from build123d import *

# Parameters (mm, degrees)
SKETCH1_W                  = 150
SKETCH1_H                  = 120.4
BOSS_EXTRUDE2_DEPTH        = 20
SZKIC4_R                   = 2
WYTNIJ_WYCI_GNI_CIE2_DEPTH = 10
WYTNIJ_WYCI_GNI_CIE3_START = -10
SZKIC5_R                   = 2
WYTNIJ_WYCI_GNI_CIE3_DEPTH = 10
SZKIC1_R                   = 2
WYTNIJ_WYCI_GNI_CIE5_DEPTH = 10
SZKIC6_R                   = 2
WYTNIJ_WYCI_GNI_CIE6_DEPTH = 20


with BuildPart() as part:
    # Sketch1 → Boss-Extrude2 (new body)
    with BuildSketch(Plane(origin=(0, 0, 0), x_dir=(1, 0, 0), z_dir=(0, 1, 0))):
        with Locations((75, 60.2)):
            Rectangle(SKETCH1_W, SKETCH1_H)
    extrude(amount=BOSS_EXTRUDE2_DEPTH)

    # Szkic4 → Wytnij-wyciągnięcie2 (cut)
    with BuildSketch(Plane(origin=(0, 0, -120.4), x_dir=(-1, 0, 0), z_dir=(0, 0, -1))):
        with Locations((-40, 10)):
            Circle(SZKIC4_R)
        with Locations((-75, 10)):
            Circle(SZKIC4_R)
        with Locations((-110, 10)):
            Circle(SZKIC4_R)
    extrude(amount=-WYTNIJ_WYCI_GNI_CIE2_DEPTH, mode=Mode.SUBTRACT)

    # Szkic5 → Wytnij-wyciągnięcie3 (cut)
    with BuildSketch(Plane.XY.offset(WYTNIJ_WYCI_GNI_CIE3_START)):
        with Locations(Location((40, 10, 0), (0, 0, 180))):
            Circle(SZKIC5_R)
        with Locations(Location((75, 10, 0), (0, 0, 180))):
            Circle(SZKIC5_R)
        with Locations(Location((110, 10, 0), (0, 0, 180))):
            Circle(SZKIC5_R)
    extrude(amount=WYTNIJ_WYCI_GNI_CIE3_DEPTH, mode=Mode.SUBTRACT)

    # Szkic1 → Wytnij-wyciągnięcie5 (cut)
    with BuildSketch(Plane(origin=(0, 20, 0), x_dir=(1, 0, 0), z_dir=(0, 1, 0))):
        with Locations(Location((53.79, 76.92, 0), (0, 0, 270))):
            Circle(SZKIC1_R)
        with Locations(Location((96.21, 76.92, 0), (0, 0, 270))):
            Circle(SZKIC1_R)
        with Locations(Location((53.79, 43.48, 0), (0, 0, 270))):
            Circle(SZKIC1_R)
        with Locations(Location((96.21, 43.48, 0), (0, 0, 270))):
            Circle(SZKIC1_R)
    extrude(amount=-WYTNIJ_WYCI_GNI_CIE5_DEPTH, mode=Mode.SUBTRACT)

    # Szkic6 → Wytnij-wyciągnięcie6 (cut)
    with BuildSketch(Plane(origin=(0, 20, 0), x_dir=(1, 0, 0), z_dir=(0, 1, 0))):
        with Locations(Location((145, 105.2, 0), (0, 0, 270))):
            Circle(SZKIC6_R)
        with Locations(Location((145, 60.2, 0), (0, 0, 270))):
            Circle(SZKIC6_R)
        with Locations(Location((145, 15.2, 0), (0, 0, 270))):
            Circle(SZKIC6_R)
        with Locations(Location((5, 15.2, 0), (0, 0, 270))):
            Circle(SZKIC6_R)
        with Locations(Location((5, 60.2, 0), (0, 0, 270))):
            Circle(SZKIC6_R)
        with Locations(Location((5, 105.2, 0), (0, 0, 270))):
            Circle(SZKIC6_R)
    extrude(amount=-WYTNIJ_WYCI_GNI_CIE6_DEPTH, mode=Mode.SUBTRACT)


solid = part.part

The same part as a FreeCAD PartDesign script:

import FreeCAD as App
import Part
import Sketcher


def add_polygon(sketch, points):
    """Adds a closed chain of lines whose ends are joined by coincident constraints."""
    first, n = sketch.GeometryCount, len(points)
    for a, b in zip(points, points[1:] + points[:1]):
        sketch.addGeometry(Part.LineSegment(App.Vector(*a, 0), App.Vector(*b, 0)), False)
    for i in range(n):
        sketch.addConstraint(Sketcher.Constraint("Coincident", first + i, 2, first + (i + 1) % n, 1))

doc = App.newDocument("Part")
params = doc.addObject("Spreadsheet::Sheet", "Params")
for row, (alias, value) in enumerate([
    ("sketch1_width", "150 mm"),
    ("sketch1_height", "120.4 mm"),
    ("pad1_length", "20 mm"),
    ("sketch2_diameter", "4 mm"),
    ("pocket1_length", "10 mm"),
    ("sketch3_diameter", "4 mm"),
    ("pocket2_length", "10 mm"),
    ("sketch4_diameter", "4 mm"),
    ("pocket3_length", "10 mm"),
    ("sketch5_diameter", "4 mm"),
    ("pocket4_length", "20 mm"),
], start=1):
    params.set(f"A{row}", alias)
    params.set(f"B{row}", "=" + value)
    params.setAlias(f"B{row}", alias)

body = doc.addObject("PartDesign::Body", "Body")

# Sketch on XZ plane
sketch1 = body.newObject("Sketcher::SketchObject", "Sketch")
sketch1.AttachmentSupport = (doc.getObject("XZ_Plane"), [""])
sketch1.MapMode = "FlatFace"
add_polygon(sketch1, [(0, -120), (0, 0), (150, 0), (150, -120)])  # lines 0-3
sketch1.addConstraint([
    Sketcher.Constraint("Vertical", 0),
    Sketcher.Constraint("Horizontal", 1),
    Sketcher.Constraint("Vertical", 2),
    Sketcher.Constraint("Horizontal", 3),
    Sketcher.Constraint("Coincident", 0, 2, -1, 1),
    Sketcher.Constraint("DistanceX", 1, 1, 1, 2, 150.0),
    Sketcher.Constraint("DistanceY", 0, 1, 0, 2, 120.4),
])
sketch1.setExpression("Constraints[9]", "Params.sketch1_width")
sketch1.setExpression("Constraints[10]", "Params.sketch1_height")
pad1 = body.newObject("PartDesign::Pad", "Pad")
pad1.Profile = sketch1
pad1.setExpression("Length", "Params.pad1_length")
pad1.Reversed = True

# Sketch on XY plane
sketch2 = body.newObject("Sketcher::SketchObject", "Sketch001")
sketch2.AttachmentSupport = (doc.getObject("XY_Plane"), [""])
sketch2.MapMode = "FlatFace"
sketch2.AttachmentOffset = App.Placement(App.Vector(0, 0, -120.4), App.Rotation())
sketch2.addGeometry([
    Part.Circle(App.Vector(40, 10, 0), App.Vector(0, 0, 1), 2),
    Part.Circle(App.Vector(75, 10, 0), App.Vector(0, 0, 1), 2),
    Part.Circle(App.Vector(110, 10, 0), App.Vector(0, 0, 1), 2),
], False)
sketch2.addConstraint([
    Sketcher.Constraint("Equal", 0, 1),
    Sketcher.Constraint("Equal", 1, 2),
    Sketcher.Constraint("Horizontal", 0, 3, 1, 3),
    Sketcher.Constraint("Horizontal", 1, 3, 2, 3),
    Sketcher.Constraint("Diameter", 0, 4.0),
    Sketcher.Constraint("DistanceX", -1, 1, 0, 3, 40.0),
    Sketcher.Constraint("DistanceY", -1, 1, 0, 3, 10.0),
    Sketcher.Constraint("DistanceX", -1, 1, 1, 3, 75.0),
    Sketcher.Constraint("DistanceX", -1, 1, 2, 3, 110.0),
])
sketch2.setExpression("Constraints[4]", "Params.sketch2_diameter")
pocket1 = body.newObject("PartDesign::Pocket", "Pocket")
pocket1.Profile = sketch2
pocket1.setExpression("Length", "Params.pocket1_length")
pocket1.Reversed = True

# Sketch on XY plane
sketch3 = body.newObject("Sketcher::SketchObject", "Sketch002")
sketch3.AttachmentSupport = (doc.getObject("XY_Plane"), [""])
sketch3.MapMode = "FlatFace"
sketch3.AttachmentOffset = App.Placement(App.Vector(0, 0, -10), App.Rotation())
sketch3.addGeometry([
    Part.Circle(App.Vector(40, 10, 0), App.Vector(0, 0, 1), 2),
    Part.Circle(App.Vector(75, 10, 0), App.Vector(0, 0, 1), 2),
    Part.Circle(App.Vector(110, 10, 0), App.Vector(0, 0, 1), 2),
], False)
sketch3.addConstraint([
    Sketcher.Constraint("Equal", 0, 1),
    Sketcher.Constraint("Equal", 1, 2),
    Sketcher.Constraint("Horizontal", 0, 3, 1, 3),
    Sketcher.Constraint("Horizontal", 1, 3, 2, 3),
    Sketcher.Constraint("Diameter", 0, 4.0),
    Sketcher.Constraint("DistanceX", -1, 1, 0, 3, 40.0),
    Sketcher.Constraint("DistanceY", -1, 1, 0, 3, 10.0),
    Sketcher.Constraint("DistanceX", -1, 1, 1, 3, 75.0),
    Sketcher.Constraint("DistanceX", -1, 1, 2, 3, 110.0),
])
sketch3.setExpression("Constraints[4]", "Params.sketch3_diameter")
pocket2 = body.newObject("PartDesign::Pocket", "Pocket001")
pocket2.Profile = sketch3
pocket2.setExpression("Length", "Params.pocket2_length")
pocket2.Reversed = True

# Sketch on XZ plane
sketch4 = body.newObject("Sketcher::SketchObject", "Sketch003")
sketch4.AttachmentSupport = (doc.getObject("XZ_Plane"), [""])
sketch4.MapMode = "FlatFace"
sketch4.AttachmentOffset = App.Placement(App.Vector(0, 0, -20), App.Rotation())
sketch4.addGeometry([
    Part.Circle(App.Vector(53.8, -76.9, 0), App.Vector(0, 0, 1), 2),
    Part.Circle(App.Vector(96.2, -76.9, 0), App.Vector(0, 0, 1), 2),
    Part.Circle(App.Vector(53.8, -43.5, 0), App.Vector(0, 0, 1), 2),
    Part.Circle(App.Vector(96.2, -43.5, 0), App.Vector(0, 0, 1), 2),
], False)
sketch4.addConstraint([
    Sketcher.Constraint("Equal", 0, 1),
    Sketcher.Constraint("Equal", 1, 2),
    Sketcher.Constraint("Equal", 2, 3),
    Sketcher.Constraint("Horizontal", 0, 3, 1, 3),
    Sketcher.Constraint("Horizontal", 2, 3, 3, 3),
    Sketcher.Constraint("Vertical", 0, 3, 2, 3),
    Sketcher.Constraint("Vertical", 1, 3, 3, 3),
    Sketcher.Constraint("Diameter", 0, 4.0),
    Sketcher.Constraint("DistanceX", -1, 1, 0, 3, 53.79),
    Sketcher.Constraint("DistanceY", 0, 3, -1, 1, 76.92),
    Sketcher.Constraint("DistanceX", -1, 1, 1, 3, 96.21),
    Sketcher.Constraint("DistanceY", 2, 3, -1, 1, 43.48),
])
sketch4.setExpression("Constraints[7]", "Params.sketch4_diameter")
pocket3 = body.newObject("PartDesign::Pocket", "Pocket002")
pocket3.Profile = sketch4
pocket3.setExpression("Length", "Params.pocket3_length")
pocket3.Reversed = True

# Sketch on XZ plane
sketch5 = body.newObject("Sketcher::SketchObject", "Sketch004")
sketch5.AttachmentSupport = (doc.getObject("XZ_Plane"), [""])
sketch5.MapMode = "FlatFace"
sketch5.AttachmentOffset = App.Placement(App.Vector(0, 0, -20), App.Rotation())
sketch5.addGeometry([
    Part.Circle(App.Vector(145, -105.2, 0), App.Vector(0, 0, 1), 2),  # 0
    Part.Circle(App.Vector(145, -60.2, 0), App.Vector(0, 0, 1), 2),  # 1
    Part.Circle(App.Vector(145, -15.2, 0), App.Vector(0, 0, 1), 2),  # 2
    Part.Circle(App.Vector(5, -15.2, 0), App.Vector(0, 0, 1), 2),  # 3
    Part.Circle(App.Vector(5, -60.2, 0), App.Vector(0, 0, 1), 2),  # 4
    Part.Circle(App.Vector(5, -105.2, 0), App.Vector(0, 0, 1), 2),  # 5
], False)
sketch5.addConstraint([
    Sketcher.Constraint("Equal", 0, 1),
    Sketcher.Constraint("Equal", 1, 2),
    Sketcher.Constraint("Equal", 2, 3),
    Sketcher.Constraint("Equal", 3, 4),
    Sketcher.Constraint("Equal", 4, 5),
    Sketcher.Constraint("Horizontal", 2, 3, 3, 3),
    Sketcher.Constraint("Horizontal", 1, 3, 4, 3),
    Sketcher.Constraint("Horizontal", 0, 3, 5, 3),
    Sketcher.Constraint("Vertical", 0, 3, 1, 3),
    Sketcher.Constraint("Vertical", 1, 3, 2, 3),
    Sketcher.Constraint("Vertical", 3, 3, 4, 3),
    Sketcher.Constraint("Vertical", 4, 3, 5, 3),
    Sketcher.Constraint("Diameter", 0, 4.0),
    Sketcher.Constraint("DistanceX", -1, 1, 0, 3, 145.0),
    Sketcher.Constraint("DistanceX", -1, 1, 3, 3, 5.0),
    Sketcher.Constraint("DistanceY", 0, 3, 1, 3, 45.0),
    Sketcher.Constraint("DistanceY", 1, 3, 2, 3, 45.0),
    Sketcher.Constraint("DistanceY", 0, 3, -1, 1, 105.2),
])
sketch5.setExpression("Constraints[12]", "Params.sketch5_diameter")
pocket4 = body.newObject("PartDesign::Pocket", "Pocket003")
pocket4.Profile = sketch5
pocket4.setExpression("Length", "Params.pocket4_length")
pocket4.Reversed = True

doc.recompute()
